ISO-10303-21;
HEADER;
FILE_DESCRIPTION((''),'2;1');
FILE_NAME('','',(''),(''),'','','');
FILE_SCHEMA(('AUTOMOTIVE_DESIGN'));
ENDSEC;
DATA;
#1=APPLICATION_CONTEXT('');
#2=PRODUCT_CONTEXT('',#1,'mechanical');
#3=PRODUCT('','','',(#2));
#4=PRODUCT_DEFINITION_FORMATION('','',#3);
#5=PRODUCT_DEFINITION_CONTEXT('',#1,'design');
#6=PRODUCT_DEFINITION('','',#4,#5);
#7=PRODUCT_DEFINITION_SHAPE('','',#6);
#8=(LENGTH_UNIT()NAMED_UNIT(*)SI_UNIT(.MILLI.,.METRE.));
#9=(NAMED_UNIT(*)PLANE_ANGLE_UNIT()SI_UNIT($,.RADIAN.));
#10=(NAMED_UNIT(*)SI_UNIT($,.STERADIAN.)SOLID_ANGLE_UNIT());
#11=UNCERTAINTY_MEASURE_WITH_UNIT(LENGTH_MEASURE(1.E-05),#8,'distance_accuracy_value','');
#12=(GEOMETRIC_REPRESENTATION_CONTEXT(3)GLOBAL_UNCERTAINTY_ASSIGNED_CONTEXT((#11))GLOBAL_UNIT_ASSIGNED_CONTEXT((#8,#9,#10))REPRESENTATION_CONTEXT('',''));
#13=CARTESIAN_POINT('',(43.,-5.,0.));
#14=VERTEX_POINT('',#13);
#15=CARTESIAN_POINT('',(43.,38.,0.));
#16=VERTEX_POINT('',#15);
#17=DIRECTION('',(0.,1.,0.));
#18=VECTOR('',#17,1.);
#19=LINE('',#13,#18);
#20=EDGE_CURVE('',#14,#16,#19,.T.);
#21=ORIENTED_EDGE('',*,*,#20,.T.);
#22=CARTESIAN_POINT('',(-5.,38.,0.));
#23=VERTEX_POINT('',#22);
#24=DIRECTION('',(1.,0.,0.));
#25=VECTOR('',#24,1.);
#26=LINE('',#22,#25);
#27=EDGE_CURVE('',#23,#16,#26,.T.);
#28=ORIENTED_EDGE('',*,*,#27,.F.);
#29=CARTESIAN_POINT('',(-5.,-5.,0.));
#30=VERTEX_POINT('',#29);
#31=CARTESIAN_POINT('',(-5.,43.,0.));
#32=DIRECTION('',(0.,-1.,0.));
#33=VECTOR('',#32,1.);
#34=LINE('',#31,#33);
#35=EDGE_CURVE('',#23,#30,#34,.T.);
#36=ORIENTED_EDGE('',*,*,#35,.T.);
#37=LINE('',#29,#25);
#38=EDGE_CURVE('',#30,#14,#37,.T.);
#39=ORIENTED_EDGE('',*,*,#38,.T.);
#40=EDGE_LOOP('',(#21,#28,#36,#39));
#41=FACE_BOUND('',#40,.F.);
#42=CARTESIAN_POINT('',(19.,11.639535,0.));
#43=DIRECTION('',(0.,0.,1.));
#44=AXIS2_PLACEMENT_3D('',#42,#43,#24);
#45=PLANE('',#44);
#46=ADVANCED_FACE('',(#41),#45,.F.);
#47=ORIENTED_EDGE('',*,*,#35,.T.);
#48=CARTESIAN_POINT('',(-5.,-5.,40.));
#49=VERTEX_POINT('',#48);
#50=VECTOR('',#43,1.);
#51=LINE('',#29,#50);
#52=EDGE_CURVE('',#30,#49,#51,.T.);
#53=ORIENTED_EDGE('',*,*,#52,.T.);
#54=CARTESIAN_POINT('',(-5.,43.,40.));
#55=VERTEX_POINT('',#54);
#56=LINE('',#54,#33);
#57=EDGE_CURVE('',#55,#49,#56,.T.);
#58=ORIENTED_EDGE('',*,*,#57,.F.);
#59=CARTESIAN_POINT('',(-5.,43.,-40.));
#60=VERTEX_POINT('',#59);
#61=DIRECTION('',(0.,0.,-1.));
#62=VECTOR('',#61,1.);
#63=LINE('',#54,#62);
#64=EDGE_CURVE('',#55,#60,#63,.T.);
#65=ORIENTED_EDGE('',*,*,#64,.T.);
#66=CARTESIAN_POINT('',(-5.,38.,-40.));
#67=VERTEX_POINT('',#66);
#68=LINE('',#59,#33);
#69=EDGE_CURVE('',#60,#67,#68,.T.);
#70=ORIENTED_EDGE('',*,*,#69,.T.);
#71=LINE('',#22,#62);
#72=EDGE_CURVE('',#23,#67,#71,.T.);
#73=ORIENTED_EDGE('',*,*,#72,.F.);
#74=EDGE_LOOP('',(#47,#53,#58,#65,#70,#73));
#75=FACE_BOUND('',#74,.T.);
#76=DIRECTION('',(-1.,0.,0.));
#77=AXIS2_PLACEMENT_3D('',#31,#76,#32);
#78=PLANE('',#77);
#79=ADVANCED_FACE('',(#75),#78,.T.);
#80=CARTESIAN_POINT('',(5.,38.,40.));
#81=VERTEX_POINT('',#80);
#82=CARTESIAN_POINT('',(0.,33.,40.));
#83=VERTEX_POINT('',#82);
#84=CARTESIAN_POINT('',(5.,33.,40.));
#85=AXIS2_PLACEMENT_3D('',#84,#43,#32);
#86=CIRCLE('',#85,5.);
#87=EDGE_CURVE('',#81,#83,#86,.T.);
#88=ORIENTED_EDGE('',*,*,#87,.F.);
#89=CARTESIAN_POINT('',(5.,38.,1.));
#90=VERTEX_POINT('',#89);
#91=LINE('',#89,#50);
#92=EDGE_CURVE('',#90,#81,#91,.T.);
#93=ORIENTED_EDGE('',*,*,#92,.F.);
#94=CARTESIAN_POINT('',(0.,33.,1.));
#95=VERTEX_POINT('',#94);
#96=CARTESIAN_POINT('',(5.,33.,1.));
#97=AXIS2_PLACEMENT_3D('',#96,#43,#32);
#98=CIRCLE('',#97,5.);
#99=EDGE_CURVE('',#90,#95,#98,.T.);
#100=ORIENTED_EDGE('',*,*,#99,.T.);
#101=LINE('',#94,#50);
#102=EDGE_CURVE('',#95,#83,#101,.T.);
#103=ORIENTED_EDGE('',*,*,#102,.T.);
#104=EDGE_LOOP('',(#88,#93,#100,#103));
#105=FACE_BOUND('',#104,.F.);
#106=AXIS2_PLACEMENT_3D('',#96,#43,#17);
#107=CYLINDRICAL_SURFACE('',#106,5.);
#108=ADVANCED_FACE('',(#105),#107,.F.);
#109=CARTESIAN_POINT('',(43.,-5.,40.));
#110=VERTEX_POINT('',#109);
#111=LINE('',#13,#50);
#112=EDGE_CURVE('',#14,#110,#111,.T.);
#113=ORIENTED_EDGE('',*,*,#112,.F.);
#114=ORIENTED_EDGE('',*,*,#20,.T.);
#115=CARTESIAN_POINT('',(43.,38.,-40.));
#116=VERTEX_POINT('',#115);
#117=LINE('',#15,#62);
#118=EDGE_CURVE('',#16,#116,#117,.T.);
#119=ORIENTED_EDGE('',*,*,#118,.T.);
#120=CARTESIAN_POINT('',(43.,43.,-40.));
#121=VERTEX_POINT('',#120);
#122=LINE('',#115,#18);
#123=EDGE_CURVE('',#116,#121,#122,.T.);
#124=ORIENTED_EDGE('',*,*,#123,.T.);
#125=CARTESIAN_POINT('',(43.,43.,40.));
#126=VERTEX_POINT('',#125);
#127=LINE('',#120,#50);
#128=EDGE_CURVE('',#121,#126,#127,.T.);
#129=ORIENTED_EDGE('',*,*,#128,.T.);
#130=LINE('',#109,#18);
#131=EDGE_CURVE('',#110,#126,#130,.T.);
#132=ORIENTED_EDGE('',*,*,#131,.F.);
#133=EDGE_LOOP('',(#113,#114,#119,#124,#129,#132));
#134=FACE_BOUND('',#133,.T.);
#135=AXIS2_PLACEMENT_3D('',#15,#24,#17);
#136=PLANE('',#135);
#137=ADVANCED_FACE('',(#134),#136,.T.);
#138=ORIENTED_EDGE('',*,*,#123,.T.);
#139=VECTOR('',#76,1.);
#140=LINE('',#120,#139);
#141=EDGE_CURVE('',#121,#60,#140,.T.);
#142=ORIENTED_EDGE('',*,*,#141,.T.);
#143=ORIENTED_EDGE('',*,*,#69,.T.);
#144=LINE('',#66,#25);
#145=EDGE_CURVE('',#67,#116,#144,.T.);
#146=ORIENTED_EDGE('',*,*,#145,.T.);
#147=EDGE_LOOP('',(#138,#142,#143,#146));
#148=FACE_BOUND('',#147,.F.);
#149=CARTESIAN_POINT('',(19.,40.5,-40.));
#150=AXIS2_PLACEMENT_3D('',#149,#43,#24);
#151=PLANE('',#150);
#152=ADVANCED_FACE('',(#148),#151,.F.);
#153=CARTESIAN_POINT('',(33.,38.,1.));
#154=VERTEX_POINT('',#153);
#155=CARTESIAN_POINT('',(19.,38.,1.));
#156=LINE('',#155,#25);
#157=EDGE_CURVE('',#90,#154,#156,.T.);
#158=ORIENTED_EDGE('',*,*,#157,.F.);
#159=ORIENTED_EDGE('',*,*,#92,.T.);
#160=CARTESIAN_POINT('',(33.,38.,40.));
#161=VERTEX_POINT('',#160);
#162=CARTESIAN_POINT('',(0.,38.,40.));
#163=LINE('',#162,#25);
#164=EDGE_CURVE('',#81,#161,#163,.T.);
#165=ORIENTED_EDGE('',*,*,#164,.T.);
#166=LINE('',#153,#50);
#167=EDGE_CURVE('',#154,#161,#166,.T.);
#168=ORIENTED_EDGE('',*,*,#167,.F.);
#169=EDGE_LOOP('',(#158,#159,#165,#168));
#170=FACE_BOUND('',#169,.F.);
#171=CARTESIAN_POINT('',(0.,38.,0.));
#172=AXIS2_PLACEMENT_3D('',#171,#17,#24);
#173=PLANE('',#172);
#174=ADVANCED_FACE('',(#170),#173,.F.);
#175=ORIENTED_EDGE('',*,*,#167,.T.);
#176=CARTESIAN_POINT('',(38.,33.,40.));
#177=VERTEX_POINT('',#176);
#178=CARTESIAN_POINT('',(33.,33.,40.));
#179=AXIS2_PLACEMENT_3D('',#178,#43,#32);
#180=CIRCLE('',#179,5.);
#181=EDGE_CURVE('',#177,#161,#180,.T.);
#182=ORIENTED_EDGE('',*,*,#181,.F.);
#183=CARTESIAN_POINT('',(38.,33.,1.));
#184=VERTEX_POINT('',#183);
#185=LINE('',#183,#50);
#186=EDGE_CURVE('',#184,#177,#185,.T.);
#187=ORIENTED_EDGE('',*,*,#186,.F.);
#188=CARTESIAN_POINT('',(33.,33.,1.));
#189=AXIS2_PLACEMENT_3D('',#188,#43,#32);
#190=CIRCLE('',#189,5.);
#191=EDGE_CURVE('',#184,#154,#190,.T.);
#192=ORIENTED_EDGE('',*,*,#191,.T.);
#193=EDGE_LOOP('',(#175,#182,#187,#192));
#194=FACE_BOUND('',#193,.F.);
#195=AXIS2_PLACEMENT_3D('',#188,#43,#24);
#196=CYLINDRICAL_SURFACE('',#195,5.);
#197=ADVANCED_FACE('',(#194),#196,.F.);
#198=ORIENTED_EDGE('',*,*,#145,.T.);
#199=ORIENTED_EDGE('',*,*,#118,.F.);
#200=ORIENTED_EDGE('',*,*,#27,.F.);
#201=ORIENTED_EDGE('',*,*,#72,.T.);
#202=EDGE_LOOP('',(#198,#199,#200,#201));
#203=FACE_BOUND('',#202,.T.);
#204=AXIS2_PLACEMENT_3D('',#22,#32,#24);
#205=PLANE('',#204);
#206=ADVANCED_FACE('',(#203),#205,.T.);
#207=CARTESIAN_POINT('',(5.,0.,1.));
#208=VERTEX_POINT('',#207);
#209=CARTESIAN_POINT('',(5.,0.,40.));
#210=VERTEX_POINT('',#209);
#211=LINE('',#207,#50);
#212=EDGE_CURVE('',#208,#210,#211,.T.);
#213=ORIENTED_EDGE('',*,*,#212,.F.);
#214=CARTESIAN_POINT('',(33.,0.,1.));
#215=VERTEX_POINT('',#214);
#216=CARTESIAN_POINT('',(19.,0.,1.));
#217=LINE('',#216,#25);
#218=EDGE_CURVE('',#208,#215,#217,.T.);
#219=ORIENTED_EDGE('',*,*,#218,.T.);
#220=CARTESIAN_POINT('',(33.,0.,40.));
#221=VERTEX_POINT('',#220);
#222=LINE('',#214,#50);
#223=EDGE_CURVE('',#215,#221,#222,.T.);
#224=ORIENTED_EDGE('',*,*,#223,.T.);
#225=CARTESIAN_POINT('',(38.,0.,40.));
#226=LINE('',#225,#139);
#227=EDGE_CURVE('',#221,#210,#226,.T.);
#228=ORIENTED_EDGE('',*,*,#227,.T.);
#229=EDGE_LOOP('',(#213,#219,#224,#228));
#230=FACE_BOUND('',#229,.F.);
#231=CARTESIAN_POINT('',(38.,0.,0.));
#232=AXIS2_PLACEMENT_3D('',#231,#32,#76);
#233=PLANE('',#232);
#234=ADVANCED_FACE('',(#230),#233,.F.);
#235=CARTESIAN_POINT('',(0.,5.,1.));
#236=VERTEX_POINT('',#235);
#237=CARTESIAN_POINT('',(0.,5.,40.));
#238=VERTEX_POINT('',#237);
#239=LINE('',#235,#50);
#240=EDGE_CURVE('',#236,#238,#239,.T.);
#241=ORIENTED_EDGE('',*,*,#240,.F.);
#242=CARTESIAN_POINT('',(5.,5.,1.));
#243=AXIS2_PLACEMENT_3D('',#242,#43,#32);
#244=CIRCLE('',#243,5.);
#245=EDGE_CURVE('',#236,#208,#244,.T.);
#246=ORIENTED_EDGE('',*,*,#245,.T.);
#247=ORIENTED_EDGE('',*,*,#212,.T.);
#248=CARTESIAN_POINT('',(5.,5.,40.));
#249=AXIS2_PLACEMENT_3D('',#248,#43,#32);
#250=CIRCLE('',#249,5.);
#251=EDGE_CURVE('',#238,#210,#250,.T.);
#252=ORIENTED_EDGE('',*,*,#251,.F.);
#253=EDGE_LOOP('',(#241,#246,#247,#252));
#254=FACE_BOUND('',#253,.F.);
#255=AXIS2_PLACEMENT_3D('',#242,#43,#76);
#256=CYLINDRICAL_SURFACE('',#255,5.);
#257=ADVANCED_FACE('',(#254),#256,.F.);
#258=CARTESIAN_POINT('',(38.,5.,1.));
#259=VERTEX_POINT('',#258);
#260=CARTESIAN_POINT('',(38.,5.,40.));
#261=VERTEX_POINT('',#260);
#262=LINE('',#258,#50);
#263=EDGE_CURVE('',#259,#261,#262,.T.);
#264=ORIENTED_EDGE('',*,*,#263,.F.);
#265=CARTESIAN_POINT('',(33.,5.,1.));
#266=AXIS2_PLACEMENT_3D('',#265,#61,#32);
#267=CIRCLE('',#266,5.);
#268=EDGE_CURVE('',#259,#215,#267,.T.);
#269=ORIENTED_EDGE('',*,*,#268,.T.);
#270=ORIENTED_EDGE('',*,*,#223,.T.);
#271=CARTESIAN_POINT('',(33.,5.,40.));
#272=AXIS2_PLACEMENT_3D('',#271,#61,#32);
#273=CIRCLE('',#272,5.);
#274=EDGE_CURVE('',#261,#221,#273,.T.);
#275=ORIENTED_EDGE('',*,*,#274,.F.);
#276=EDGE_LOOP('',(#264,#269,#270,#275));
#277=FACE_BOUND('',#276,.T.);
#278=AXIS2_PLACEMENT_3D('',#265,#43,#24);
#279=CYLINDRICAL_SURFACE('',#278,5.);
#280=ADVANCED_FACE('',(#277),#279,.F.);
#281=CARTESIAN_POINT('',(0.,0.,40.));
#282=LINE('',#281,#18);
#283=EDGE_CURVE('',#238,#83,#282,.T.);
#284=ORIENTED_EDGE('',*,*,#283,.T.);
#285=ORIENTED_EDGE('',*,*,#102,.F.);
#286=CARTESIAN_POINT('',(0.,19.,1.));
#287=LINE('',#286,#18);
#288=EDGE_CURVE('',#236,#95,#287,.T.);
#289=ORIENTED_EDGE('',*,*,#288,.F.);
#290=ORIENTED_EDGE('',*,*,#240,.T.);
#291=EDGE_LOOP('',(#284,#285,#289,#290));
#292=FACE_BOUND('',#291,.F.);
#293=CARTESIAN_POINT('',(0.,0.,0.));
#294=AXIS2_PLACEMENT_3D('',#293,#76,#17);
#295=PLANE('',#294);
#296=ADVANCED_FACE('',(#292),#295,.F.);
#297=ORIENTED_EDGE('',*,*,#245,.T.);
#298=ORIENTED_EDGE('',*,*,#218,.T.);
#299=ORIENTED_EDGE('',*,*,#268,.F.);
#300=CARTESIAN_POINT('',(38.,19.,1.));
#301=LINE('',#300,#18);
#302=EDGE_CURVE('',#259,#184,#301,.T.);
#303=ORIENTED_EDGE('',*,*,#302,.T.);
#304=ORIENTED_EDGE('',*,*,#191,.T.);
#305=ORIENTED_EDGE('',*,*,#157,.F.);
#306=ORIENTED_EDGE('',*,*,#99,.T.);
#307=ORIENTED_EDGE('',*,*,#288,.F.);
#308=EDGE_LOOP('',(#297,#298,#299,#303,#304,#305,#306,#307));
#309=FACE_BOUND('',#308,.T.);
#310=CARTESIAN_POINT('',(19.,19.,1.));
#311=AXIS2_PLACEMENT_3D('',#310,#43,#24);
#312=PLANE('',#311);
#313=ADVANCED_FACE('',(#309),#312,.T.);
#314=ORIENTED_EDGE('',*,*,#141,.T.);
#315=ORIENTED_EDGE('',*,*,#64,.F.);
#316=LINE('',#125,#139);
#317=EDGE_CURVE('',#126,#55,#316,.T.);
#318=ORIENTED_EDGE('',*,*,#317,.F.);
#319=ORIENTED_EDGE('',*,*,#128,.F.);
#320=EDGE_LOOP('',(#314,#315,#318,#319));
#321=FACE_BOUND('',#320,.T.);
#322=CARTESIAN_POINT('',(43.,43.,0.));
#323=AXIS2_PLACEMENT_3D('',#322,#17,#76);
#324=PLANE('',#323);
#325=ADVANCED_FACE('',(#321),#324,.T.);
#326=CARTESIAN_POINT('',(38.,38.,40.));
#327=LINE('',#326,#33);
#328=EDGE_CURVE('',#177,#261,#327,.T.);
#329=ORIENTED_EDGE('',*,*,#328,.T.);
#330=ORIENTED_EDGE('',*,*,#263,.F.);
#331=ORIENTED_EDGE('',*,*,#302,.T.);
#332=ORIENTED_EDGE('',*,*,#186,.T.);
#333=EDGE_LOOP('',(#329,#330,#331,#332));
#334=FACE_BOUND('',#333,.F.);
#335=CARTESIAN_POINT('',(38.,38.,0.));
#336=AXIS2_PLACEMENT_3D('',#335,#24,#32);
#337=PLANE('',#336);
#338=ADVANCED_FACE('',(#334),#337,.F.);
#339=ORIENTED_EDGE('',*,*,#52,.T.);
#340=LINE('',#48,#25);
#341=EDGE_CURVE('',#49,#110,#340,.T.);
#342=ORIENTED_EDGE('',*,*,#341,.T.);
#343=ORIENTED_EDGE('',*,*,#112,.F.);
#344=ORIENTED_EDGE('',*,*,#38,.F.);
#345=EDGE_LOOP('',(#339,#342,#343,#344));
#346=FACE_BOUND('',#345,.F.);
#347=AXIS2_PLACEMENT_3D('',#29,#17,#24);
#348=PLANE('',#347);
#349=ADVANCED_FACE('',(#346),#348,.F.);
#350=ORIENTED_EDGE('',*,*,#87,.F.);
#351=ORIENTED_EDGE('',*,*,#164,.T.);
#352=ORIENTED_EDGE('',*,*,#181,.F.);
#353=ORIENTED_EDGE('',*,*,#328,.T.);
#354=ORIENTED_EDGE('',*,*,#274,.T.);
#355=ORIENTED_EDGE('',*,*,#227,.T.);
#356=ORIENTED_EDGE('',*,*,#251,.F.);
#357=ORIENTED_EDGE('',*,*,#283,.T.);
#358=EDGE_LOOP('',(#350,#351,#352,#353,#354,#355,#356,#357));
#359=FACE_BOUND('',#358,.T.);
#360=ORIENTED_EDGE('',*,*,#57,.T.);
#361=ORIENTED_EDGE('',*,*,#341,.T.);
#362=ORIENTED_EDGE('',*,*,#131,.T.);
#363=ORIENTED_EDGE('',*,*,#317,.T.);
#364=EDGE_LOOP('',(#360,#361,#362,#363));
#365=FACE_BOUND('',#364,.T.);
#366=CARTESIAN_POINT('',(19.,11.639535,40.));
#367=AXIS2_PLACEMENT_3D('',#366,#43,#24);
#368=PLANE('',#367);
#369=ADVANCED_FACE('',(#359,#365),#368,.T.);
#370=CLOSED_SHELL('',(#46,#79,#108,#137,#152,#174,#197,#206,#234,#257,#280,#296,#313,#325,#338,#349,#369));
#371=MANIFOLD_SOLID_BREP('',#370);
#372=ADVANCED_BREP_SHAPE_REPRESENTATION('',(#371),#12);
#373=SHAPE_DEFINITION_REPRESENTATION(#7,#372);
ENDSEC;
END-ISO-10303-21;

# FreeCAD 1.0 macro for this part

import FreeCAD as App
import Part
import Sketcher


def edges_at(feature, points):
    """Names of the edges that pass closest to the given points."""
    edges = feature.Shape.Edges
    near = lambda p: min(range(len(edges)), key=lambda i: edges[i].distToShape(Part.Vertex(*p))[0])
    return sorted({f"Edge{near(p) + 1}" for p in points})

doc = App.newDocument("Part")
params = doc.addObject("Spreadsheet::Sheet", "Params")
for row, (alias, value) in enumerate([
    ("sketch1_width", "38 mm"),
    ("pad1_length", "1 mm"),
    ("sketch2_width", "48 mm"),
    ("sketch2_width2", "38 mm"),
    ("pad2_length", "40 mm"),
    ("sketch3_width", "48 mm"),
    ("sketch3_height", "5 mm"),
    ("pad3_length", "40 mm"),
    ("fillet_radius", "5 mm"),
], start=1):
    params.set(f"A{row}", alias)
    params.set(f"B{row}", "=" + value)
    params.setAlias(f"B{row}", alias)

body = doc.addObject("PartDesign::Body", "Body")

sketch1 = doc.addObject("Sketcher::SketchObject", "Sketch")
body.addObject(sketch1)
sketch1.AttachmentSupport = (doc.XY_Plane, [""])
sketch1.MapMode = "FlatFace"
sketch1.addGeometry(Part.LineSegment(App.Vector(0, 38, 0), App.Vector(0, 0, 0)), False)
sketch1.addGeometry(Part.LineSegment(App.Vector(0, 0, 0), App.Vector(38, 0, 0)), False)
sketch1.addGeometry(Part.LineSegment(App.Vector(38, 0, 0), App.Vector(38, 38, 0)), False)
sketch1.addGeometry(Part.LineSegment(App.Vector(38, 38, 0), App.Vector(0, 38, 0)), False)
sketch1.addConstraint(Sketcher.Constraint("Coincident", 0, 2, 1, 1))
sketch1.addConstraint(Sketcher.Constraint("Coincident", 1, 2, 2, 1))
sketch1.addConstraint(Sketcher.Constraint("Coincident", 2, 2, 3, 1))
sketch1.addConstraint(Sketcher.Constraint("Coincident", 3, 2, 0, 1))
sketch1.addConstraint(Sketcher.Constraint("Vertical", 0))
sketch1.addConstraint(Sketcher.Constraint("Horizontal", 1))
sketch1.addConstraint(Sketcher.Constraint("Vertical", 2))
sketch1.addConstraint(Sketcher.Constraint("Horizontal", 3))
sketch1.addConstraint(Sketcher.Constraint("Coincident", 0, 2, -1, 1))
sketch1.addConstraint(Sketcher.Constraint("Equal", 3, 0))
sketch1.addConstraint(Sketcher.Constraint("DistanceX", 1, 1, 1, 2, 38.0))
sketch1.setExpression("Constraints[10]", "Params.sketch1_width")
pad1 = doc.addObject("PartDesign::Pad", "Pad")
body.addObject(pad1)
pad1.Profile = sketch1
pad1.setExpression("Length", "Params.pad1_length")

sketch2 = doc.addObject("Sketcher::SketchObject", "Sketch001")
body.addObject(sketch2)
sketch2.AttachmentSupport = (doc.XY_Plane, [""])
sketch2.MapMode = "FlatFace"
sketch2.addGeometry(Part.LineSegment(App.Vector(-5, -5, 0), App.Vector(43, -5, 0)), False)
sketch2.addGeometry(Part.LineSegment(App.Vector(43, -5, 0), App.Vector(43, 43, 0)), False)
sketch2.addGeometry(Part.LineSegment(App.Vector(43, 43, 0), App.Vector(-5, 43, 0)), False)
sketch2.addGeometry(Part.LineSegment(App.Vector(-5, 43, 0), App.Vector(-5, -5, 0)), False)
sketch2.addGeometry(Part.LineSegment(App.Vector(38, 0, 0), App.Vector(0, 0, 0)), False)
sketch2.addGeometry(Part.LineSegment(App.Vector(0, 0, 0), App.Vector(0, 38, 0)), False)
sketch2.addGeometry(Part.LineSegment(App.Vector(0, 38, 0), App.Vector(38, 38, 0)), False)
sketch2.addGeometry(Part.LineSegment(App.Vector(38, 38, 0), App.Vector(38, 0, 0)), False)
sketch2.addConstraint(Sketcher.Constraint("Coincident", 0, 2, 1, 1))
sketch2.addConstraint(Sketcher.Constraint("Coincident", 1, 2, 2, 1))
sketch2.addConstraint(Sketcher.Constraint("Coincident", 2, 2, 3, 1))
sketch2.addConstraint(Sketcher.Constraint("Coincident", 3, 2, 0, 1))
sketch2.addConstraint(Sketcher.Constraint("Coincident", 4, 2, 5, 1))
sketch2.addConstraint(Sketcher.Constraint("Coincident", 5, 2, 6, 1))
sketch2.addConstraint(Sketcher.Constraint("Coincident", 6, 2, 7, 1))
sketch2.addConstraint(Sketcher.Constraint("Coincident", 7, 2, 4, 1))
sketch2.addConstraint(Sketcher.Constraint("Horizontal", 0))
sketch2.addConstraint(Sketcher.Constraint("Vertical", 1))
sketch2.addConstraint(Sketcher.Constraint("Horizontal", 2))
sketch2.addConstraint(Sketcher.Constraint("Vertical", 3))
sketch2.addConstraint(Sketcher.Constraint("Horizontal", 4))
sketch2.addConstraint(Sketcher.Constraint("Vertical", 5))
sketch2.addConstraint(Sketcher.Constraint("Horizontal", 6))
sketch2.addConstraint(Sketcher.Constraint("Vertical", 7))
sketch2.addConstraint(Sketcher.Constraint("Coincident", 4, 2, -1, 1))
sketch2.addConstraint(Sketcher.Constraint("Equal", 2, 1))
sketch2.addConstraint(Sketcher.Constraint("Equal", 6, 5))
sketch2.addConstraint(Sketcher.Constraint("DistanceX", 0, 1, 0, 2, 48.0))
sketch2.addConstraint(Sketcher.Constraint("DistanceX", 4, 2, 4, 1, 38.0))
sketch2.addConstraint(Sketcher.Constraint("DistanceX", -1, 1, 0, 2, 43.0))
sketch2.addConstraint(Sketcher.Constraint("DistanceY", 0, 2, -1, 1, 5.0))
sketch2.setExpression("Constraints[19]", "Params.sketch2_width")
sketch2.setExpression("Constraints[20]", "Params.sketch2_width2")
pad2 = doc.addObject("PartDesign::Pad", "Pad001")
body.addObject(pad2)
pad2.Profile = sketch2
pad2.setExpression("Length", "Params.pad2_length")

sketch3 = doc.addObject("Sketcher::SketchObject", "Sketch002")
body.addObject(sketch3)
sketch3.AttachmentSupport = (doc.XY_Plane, [""])
sketch3.MapMode = "FlatFace"
sketch3.addGeometry(Part.LineSegment(App.Vector(-5, 38, 0), App.Vector(43, 38, 0)), False)
sketch3.addGeometry(Part.LineSegment(App.Vector(43, 38, 0), App.Vector(43, 43, 0)), False)
sketch3.addGeometry(Part.LineSegment(App.Vector(43, 43, 0), App.Vector(-5, 43, 0)), False)
sketch3.addGeometry(Part.LineSegment(App.Vector(-5, 43, 0), App.Vector(-5, 38, 0)), False)
sketch3.addConstraint(Sketcher.Constraint("Coincident", 0, 2, 1, 1))
sketch3.addConstraint(Sketcher.Constraint("Coincident", 1, 2, 2, 1))
sketch3.addConstraint(Sketcher.Constraint("Coincident", 2, 2, 3, 1))
sketch3.addConstraint(Sketcher.Constraint("Coincident", 3, 2, 0, 1))
sketch3.addConstraint(Sketcher.Constraint("Horizontal", 0))
sketch3.addConstraint(Sketcher.Constraint("Vertical", 1))
sketch3.addConstraint(Sketcher.Constraint("Horizontal", 2))
sketch3.addConstraint(Sketcher.Constraint("Vertical", 3))
sketch3.addConstraint(Sketcher.Constraint("DistanceX", 0, 1, 0, 2, 48.0))
sketch3.addConstraint(Sketcher.Constraint("DistanceY", 1, 1, 1, 2, 5.0))
sketch3.addConstraint(Sketcher.Constraint("DistanceX", -1, 1, 0, 2, 43.0))
sketch3.addConstraint(Sketcher.Constraint("DistanceY", -1, 1, 0, 2, 38.0))
sketch3.setExpression("Constraints[8]", "Params.sketch3_width")
sketch3.setExpression("Constraints[9]", "Params.sketch3_height")
pad3 = doc.addObject("PartDesign::Pad", "Pad002")
body.addObject(pad3)
pad3.Profile = sketch3
pad3.setExpression("Length", "Params.pad3_length")
pad3.Reversed = True
doc.recompute()

fillet = doc.addObject("PartDesign::Fillet", "Fillet")
body.addObject(fillet)
fillet.Base = (pad3, edges_at(pad3, [
    (0, 38, 20.5),
    (38, 38, 20.5),
    (38, 0, 20.5),
    (0, 0, 20.5),
]))
fillet.setExpression("Radius", "Params.fillet_radius")

doc.recompute()
